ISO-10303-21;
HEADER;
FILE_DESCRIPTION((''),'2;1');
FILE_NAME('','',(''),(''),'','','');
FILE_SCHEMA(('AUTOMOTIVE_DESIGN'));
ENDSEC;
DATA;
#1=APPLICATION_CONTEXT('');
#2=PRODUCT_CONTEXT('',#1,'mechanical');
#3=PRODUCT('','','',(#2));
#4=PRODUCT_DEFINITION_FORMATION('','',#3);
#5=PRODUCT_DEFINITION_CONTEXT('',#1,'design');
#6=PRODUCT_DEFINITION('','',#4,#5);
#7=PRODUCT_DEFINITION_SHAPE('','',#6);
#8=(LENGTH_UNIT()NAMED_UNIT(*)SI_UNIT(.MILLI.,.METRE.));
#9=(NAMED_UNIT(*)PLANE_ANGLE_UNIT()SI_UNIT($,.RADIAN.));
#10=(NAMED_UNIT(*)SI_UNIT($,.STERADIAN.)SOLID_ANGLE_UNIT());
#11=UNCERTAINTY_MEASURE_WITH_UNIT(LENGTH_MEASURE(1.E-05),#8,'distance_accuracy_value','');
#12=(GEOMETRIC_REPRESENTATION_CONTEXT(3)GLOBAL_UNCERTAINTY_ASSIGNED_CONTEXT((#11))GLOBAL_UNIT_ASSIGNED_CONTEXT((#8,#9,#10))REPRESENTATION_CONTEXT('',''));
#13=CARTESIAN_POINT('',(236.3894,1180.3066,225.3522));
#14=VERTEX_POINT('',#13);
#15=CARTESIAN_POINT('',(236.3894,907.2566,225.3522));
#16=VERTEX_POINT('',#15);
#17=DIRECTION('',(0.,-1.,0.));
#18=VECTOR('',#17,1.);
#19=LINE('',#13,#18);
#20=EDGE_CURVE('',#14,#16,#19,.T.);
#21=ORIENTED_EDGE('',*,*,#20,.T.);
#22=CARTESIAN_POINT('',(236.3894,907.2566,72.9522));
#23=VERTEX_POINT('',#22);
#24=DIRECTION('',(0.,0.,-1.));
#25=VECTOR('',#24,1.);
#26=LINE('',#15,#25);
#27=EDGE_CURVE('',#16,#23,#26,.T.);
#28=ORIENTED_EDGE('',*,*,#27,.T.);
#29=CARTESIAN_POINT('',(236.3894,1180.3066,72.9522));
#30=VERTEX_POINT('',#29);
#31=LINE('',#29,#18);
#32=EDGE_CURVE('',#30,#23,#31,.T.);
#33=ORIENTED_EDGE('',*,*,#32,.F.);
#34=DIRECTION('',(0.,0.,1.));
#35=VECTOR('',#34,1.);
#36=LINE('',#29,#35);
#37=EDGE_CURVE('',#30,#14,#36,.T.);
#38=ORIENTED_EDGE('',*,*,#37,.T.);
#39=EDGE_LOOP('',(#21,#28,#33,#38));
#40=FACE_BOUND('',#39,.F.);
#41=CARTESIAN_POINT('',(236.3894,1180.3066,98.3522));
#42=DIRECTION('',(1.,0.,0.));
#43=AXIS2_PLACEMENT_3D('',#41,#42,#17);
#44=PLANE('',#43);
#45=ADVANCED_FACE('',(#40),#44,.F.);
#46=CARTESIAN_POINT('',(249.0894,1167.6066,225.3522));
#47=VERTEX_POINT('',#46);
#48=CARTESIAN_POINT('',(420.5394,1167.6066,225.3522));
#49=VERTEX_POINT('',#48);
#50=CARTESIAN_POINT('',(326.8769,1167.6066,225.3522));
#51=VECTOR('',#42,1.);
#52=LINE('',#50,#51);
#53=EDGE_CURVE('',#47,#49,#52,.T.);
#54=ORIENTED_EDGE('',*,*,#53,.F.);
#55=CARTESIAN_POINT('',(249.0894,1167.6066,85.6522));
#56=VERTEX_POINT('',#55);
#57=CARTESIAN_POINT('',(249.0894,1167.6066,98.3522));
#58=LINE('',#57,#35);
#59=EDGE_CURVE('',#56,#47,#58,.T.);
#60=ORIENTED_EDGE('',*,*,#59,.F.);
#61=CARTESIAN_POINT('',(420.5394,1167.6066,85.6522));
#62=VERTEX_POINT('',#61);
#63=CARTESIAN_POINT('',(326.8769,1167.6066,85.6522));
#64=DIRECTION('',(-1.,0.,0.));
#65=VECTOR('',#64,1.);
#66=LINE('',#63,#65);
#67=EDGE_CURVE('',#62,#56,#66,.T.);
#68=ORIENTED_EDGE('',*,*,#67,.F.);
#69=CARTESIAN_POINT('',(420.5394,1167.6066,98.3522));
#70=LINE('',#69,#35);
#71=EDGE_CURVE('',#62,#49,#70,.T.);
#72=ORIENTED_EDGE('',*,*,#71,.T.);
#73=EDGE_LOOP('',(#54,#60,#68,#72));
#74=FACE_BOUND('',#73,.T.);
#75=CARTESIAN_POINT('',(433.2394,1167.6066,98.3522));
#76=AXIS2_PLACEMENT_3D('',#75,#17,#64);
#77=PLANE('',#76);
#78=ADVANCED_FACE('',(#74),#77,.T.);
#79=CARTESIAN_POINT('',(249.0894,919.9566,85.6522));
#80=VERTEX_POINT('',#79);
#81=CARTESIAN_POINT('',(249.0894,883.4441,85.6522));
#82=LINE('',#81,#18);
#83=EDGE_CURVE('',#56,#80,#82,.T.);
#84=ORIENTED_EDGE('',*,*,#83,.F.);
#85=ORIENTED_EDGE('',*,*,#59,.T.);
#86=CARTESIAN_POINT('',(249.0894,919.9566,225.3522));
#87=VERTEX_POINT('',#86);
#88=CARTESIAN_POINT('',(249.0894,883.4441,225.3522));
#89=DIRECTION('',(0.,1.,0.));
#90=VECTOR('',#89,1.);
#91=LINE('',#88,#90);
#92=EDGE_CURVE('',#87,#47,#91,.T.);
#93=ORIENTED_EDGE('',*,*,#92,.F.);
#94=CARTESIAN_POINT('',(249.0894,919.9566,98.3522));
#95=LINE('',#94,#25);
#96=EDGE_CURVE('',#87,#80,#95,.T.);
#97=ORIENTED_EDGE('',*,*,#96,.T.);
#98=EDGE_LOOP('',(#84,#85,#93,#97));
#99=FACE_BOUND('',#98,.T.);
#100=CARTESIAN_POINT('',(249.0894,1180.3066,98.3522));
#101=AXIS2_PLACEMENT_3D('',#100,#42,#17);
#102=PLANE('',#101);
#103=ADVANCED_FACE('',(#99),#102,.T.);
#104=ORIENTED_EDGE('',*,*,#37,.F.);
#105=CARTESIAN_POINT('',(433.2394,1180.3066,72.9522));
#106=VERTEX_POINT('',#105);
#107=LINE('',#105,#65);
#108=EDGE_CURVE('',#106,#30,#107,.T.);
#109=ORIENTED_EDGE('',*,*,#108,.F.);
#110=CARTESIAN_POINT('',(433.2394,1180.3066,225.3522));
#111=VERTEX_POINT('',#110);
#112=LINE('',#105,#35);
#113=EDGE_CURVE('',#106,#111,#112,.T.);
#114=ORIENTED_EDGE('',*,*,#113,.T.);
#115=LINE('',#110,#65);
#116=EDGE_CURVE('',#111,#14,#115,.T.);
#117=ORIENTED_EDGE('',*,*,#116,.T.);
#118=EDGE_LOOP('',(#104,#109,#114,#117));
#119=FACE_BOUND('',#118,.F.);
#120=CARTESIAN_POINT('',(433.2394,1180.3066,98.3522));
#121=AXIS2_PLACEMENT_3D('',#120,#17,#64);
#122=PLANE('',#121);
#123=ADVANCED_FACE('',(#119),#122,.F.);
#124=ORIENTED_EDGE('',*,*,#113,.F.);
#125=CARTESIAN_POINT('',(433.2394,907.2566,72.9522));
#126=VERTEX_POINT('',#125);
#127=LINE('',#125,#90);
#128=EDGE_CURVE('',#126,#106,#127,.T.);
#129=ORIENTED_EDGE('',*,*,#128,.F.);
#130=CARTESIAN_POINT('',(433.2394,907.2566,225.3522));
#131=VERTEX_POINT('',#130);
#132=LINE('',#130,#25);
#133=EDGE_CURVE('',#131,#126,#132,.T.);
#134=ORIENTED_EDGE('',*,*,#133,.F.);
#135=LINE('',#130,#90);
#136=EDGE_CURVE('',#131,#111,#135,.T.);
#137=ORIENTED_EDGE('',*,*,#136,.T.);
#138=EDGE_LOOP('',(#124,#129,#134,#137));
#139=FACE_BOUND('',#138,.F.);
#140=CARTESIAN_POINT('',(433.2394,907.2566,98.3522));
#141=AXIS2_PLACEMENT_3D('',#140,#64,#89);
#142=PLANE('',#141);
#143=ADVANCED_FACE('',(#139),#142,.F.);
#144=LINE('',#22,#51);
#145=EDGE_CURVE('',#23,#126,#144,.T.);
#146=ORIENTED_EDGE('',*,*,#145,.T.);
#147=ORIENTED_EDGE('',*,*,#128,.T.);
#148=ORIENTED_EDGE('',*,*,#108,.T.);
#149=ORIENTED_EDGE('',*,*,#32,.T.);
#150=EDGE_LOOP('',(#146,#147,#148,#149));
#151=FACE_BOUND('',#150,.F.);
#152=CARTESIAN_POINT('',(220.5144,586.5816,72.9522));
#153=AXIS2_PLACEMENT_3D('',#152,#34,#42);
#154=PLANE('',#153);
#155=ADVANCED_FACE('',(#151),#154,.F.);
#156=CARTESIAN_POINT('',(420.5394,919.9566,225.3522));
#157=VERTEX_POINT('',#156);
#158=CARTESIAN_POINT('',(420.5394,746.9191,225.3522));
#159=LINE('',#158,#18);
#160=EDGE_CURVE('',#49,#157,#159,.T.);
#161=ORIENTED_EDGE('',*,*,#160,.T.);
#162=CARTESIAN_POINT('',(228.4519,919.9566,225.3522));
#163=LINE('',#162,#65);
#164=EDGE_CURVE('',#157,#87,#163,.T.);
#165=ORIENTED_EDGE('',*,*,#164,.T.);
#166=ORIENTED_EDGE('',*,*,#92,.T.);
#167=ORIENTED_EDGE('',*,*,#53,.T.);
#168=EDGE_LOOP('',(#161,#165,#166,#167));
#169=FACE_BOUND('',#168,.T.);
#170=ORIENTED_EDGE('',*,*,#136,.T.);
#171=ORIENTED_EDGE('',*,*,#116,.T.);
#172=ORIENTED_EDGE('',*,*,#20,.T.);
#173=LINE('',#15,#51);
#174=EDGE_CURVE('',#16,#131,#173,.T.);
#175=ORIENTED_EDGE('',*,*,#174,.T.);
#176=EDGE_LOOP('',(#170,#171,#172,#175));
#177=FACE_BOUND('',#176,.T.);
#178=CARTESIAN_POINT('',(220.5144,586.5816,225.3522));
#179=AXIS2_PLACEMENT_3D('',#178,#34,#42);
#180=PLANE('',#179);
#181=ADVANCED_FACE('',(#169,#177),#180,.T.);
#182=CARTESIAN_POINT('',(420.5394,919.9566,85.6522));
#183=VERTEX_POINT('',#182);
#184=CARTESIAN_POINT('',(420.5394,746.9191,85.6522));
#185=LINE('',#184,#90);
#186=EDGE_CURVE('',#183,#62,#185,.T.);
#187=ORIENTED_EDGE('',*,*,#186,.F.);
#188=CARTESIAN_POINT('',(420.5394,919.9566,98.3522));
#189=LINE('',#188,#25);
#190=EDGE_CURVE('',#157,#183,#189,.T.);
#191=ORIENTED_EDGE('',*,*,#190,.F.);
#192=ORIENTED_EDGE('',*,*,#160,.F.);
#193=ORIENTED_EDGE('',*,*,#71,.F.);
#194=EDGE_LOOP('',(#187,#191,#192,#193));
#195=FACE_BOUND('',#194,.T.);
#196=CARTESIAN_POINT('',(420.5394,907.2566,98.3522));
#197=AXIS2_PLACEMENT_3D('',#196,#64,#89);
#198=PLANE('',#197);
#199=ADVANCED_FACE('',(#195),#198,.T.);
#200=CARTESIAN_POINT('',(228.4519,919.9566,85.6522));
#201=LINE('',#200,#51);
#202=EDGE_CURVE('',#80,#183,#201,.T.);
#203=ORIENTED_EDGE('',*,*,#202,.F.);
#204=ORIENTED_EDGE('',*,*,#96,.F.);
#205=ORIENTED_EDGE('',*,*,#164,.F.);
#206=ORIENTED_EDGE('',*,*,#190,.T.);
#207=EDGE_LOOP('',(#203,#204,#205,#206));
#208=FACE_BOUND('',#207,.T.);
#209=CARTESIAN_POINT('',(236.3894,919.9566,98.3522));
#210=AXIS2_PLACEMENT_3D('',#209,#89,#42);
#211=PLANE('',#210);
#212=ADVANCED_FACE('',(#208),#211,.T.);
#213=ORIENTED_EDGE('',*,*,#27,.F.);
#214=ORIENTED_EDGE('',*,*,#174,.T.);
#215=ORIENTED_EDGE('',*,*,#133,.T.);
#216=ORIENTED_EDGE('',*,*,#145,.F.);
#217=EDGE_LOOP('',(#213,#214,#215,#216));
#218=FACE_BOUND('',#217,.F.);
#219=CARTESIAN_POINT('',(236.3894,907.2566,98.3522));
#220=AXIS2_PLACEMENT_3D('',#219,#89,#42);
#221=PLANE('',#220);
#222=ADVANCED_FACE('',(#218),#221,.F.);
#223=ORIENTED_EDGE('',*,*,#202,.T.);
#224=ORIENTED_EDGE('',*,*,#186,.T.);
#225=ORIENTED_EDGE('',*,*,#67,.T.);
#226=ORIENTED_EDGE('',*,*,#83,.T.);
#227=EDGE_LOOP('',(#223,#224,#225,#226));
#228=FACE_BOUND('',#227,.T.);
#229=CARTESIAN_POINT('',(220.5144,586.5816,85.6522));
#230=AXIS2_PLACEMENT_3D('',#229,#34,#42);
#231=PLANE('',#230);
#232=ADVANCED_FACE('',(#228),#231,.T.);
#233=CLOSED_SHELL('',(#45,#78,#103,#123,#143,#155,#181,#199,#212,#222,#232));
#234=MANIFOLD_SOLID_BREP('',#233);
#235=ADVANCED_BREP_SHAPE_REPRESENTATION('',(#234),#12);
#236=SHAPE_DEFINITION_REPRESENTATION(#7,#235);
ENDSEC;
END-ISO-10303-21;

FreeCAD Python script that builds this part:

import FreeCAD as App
import Part
import Sketcher
Q = App.Units.Quantity


def faces_at(feature, points):
    """Names of the faces that lie closest to the given points."""
    faces = feature.Shape.Faces
    near = lambda p: min(range(len(faces)), key=lambda i: faces[i].distToShape(Part.Vertex(*p))[0])
    return sorted({f"Face{near(p) + 1}" for p in points})

doc = App.newDocument("Part")
body = doc.addObject("PartDesign::Body", "Body")

sketch1 = doc.addObject("Sketcher::SketchObject", "Sketch")
body.addObject(sketch1)
sketch1.AttachmentSupport = (doc.XY_Plane, [""])
sketch1.MapMode = "FlatFace"
sketch1.AttachmentOffset = App.Placement(App.Vector(0, 0, 98.3522), App.Rotation())
sketch1.addGeometry([
    Part.LineSegment(App.Vector(433.2394, 907.2566, 0), App.Vector(433.2394, 1180.3066, 0)),
    Part.LineSegment(App.Vector(433.2394, 1180.3066, 0), App.Vector(236.3894, 1180.3066, 0)),
    Part.LineSegment(App.Vector(236.3894, 1180.3066, 0), App.Vector(236.3894, 907.2566, 0)),
    Part.LineSegment(App.Vector(236.3894, 907.2566, 0), App.Vector(433.2394, 907.2566, 0)),
], False)
sketch1.addConstraint([
    Sketcher.Constraint("Coincident", 0, 2, 1, 1),
    Sketcher.Constraint("Coincident", 1, 2, 2, 1),
    Sketcher.Constraint("Coincident", 2, 2, 3, 1),
    Sketcher.Constraint("Coincident", 3, 2, 0, 1),
    Sketcher.Constraint("Vertical", 0),
    Sketcher.Constraint("Horizontal", 1),
    Sketcher.Constraint("Vertical", 2),
    Sketcher.Constraint("Horizontal", 3),
    Sketcher.Constraint("DistanceX", 1, 2, 1, 1, Q("7.75 in")),
    Sketcher.Constraint("DistanceY", 0, 1, 0, 2, Q("10.75 in")),
    Sketcher.Constraint("DistanceX", -1, 1, 0, 2, 433.2394),
    Sketcher.Constraint("DistanceY", -1, 1, 0, 2, 1180.3066),
])
pad1 = doc.addObject("PartDesign::Pad", "Pad")
body.addObject(pad1)
pad1.Profile = sketch1
pad1.Type = "TwoLengths"
pad1.Length = Q("5 in")
pad1.Length2 = Q("1 in")
doc.recompute()

thickness = doc.addObject("PartDesign::Thickness", "Thickness")
body.addObject(thickness)
thickness.Base = (pad1, faces_at(pad1, [(302.006, 1089.29, 225.352)]))
thickness.Value = Q("0.5 in")
thickness.Reversed = True
thickness.Join = "Intersection"

doc.recompute()
